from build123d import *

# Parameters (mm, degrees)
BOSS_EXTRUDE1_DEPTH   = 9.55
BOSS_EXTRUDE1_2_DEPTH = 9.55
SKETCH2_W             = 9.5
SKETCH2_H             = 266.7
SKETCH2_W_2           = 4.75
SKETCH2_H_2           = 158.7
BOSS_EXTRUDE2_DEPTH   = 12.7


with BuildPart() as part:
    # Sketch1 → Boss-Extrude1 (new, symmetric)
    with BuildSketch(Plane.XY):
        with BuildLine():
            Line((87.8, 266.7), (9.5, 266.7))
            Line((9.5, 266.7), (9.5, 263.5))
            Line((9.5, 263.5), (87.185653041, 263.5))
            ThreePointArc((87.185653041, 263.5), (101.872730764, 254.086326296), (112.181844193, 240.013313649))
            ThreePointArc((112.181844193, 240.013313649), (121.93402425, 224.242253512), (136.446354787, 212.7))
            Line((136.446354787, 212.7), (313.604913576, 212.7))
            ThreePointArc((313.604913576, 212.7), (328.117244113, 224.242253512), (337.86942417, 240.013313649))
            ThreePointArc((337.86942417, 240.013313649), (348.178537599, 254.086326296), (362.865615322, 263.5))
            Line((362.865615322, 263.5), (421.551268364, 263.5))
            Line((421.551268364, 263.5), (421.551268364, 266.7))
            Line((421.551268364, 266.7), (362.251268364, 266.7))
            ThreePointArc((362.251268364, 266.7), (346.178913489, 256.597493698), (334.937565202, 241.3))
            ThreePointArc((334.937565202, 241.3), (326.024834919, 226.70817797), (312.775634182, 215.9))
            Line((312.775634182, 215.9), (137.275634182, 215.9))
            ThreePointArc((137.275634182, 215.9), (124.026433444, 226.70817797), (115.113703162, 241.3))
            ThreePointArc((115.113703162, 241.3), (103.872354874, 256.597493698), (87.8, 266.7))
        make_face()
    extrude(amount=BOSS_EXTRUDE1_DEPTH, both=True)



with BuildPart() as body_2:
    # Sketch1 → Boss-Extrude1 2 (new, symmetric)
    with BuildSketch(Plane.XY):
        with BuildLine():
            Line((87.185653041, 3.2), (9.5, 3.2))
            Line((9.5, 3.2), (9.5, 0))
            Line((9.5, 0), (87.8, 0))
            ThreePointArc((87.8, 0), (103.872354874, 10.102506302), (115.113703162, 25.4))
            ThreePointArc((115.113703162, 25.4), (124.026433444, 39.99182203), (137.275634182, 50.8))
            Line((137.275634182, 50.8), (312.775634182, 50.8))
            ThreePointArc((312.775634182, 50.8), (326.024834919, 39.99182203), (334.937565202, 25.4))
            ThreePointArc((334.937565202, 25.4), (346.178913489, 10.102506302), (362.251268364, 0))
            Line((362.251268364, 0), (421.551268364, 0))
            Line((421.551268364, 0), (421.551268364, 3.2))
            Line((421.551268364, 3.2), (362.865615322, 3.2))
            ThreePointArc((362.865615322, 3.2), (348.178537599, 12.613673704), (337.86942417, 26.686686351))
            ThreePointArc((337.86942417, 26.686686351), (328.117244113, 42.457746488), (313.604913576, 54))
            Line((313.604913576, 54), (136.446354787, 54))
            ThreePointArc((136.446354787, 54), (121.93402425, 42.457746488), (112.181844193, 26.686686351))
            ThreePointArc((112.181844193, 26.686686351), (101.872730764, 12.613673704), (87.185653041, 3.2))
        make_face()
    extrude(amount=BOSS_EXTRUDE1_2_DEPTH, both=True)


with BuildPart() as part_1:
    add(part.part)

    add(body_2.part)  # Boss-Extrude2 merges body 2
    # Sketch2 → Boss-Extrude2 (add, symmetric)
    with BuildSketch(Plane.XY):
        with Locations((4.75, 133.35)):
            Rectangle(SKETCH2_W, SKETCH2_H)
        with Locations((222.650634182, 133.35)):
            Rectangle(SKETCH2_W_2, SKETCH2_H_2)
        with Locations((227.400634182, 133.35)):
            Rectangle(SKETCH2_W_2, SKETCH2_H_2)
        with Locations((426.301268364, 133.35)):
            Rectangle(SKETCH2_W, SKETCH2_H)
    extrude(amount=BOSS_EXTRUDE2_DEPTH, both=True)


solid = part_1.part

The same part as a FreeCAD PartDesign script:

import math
import FreeCAD as App
import Part
import Sketcher

V = App.Vector


def add_polygon(sketch, points):
    """Adds a closed chain of lines whose ends are joined by coincident constraints."""
    first, n = sketch.GeometryCount, len(points)
    for a, b in zip(points, points[1:] + points[:1]):
        sketch.addGeometry(Part.LineSegment(App.Vector(*a, 0), App.Vector(*b, 0)), False)
    for i in range(n):
        sketch.addConstraint(Sketcher.Constraint("Coincident", first + i, 2, first + (i + 1) % n, 1))

doc = App.newDocument("Part")
body = doc.addObject("PartDesign::Body", "Body")

# Sketch on XY plane
sketch1 = doc.addObject("Sketcher::SketchObject", "Sketch")
body.addObject(sketch1)
sketch1.AttachmentSupport = (doc.XY_Plane, [""])
sketch1.MapMode = "FlatFace"
sketch1.addGeometry([
    Part.LineSegment(V(87.8, 266.7, 0), V(9.5, 266.7, 0)),  # 0
    Part.LineSegment(V(9.5, 266.7, 0), V(9.5, 263.5, 0)),  # 1
    Part.LineSegment(V(9.5, 263.5, 0), V(87.185653, 263.5, 0)),  # 2
    Part.ArcOfCircle(Part.Circle(V(69.278186, 219.396909, 0), V(0, 0, 1), 47.6), math.radians(25.665583), math.radians(67.90105)),  # 3
    Part.ArcOfCircle(Part.Circle(V(162.304394, 260.106348, 0), V(0, 0, 1), 54), math.radians(-158.15523), math.radians(-118.610489)),  # 4
    Part.LineSegment(V(136.446355, 212.7, 0), V(313.604914, 212.7, 0)),  # 5
    Part.ArcOfCircle(Part.Circle(V(287.746875, 260.106348, 0), V(0, 0, 1), 54), math.radians(-61.389511), math.radians(-21.84477)),  # 6
    Part.ArcOfCircle(Part.Circle(V(380.773082, 219.396909, 0), V(0, 0, 1), 47.6), math.radians(112.09895), math.radians(154.334417)),  # 7
    Part.LineSegment(V(362.865615, 263.5, 0), V(421.551268, 263.5, 0)),  # 8
    Part.LineSegment(V(421.551268, 263.5, 0), V(421.551268, 266.7, 0)),  # 9
    Part.LineSegment(V(421.551268, 266.7, 0), V(362.251268, 266.7, 0)),  # 10
    Part.ArcOfCircle(Part.Circle(V(380.773082, 219.396909, 0), V(0, 0, 1), 50.8), math.radians(111.38313), math.radians(154.458597)),  # 11
    Part.ArcOfCircle(Part.Circle(V(287.746875, 260.106348, 0), V(0, 0, 1), 50.8), math.radians(-60.482319), math.radians(-21.72818)),  # 12
    Part.LineSegment(V(312.775634, 215.9, 0), V(137.275634, 215.9, 0)),  # 13
    Part.ArcOfCircle(Part.Circle(V(162.304394, 260.106348, 0), V(0, 0, 1), 50.8), math.radians(-158.27182), math.radians(-119.517681)),  # 14
    Part.ArcOfCircle(Part.Circle(V(69.278186, 219.396909, 0), V(0, 0, 1), 50.8), math.radians(25.541403), math.radians(68.61687)),  # 15
], False)
sketch1.addConstraint([
    Sketcher.Constraint("Coincident", 0, 2, 1, 1),
    Sketcher.Constraint("Coincident", 1, 2, 2, 1),
    Sketcher.Constraint("Coincident", 2, 2, 3, 2),
    Sketcher.Constraint("Coincident", 3, 1, 4, 1),
    Sketcher.Constraint("Coincident", 4, 2, 5, 1),
    Sketcher.Constraint("Coincident", 5, 2, 6, 1),
    Sketcher.Constraint("Coincident", 6, 2, 7, 2),
    Sketcher.Constraint("Coincident", 7, 1, 8, 1),
    Sketcher.Constraint("Coincident", 8, 2, 9, 1),
    Sketcher.Constraint("Coincident", 9, 2, 10, 1),
    Sketcher.Constraint("Coincident", 10, 2, 11, 1),
    Sketcher.Constraint("Coincident", 11, 2, 12, 2),
    Sketcher.Constraint("Coincident", 12, 1, 13, 1),
    Sketcher.Constraint("Coincident", 13, 2, 14, 2),
    Sketcher.Constraint("Coincident", 14, 1, 15, 1),
    Sketcher.Constraint("Coincident", 15, 2, 0, 1),
    Sketcher.Constraint("Horizontal", 0),
    Sketcher.Constraint("Vertical", 1),
    Sketcher.Constraint("Horizontal", 2),
    Sketcher.Constraint("Horizontal", 5),
    Sketcher.Constraint("Horizontal", 8),
    Sketcher.Constraint("Vertical", 9),
    Sketcher.Constraint("Horizontal", 10),
    Sketcher.Constraint("Horizontal", 13),
    Sketcher.Constraint("Coincident", 11, 3, 7, 3),
    Sketcher.Constraint("Coincident", 12, 3, 6, 3),
    Sketcher.Constraint("Coincident", 14, 3, 4, 3),
    Sketcher.Constraint("Coincident", 15, 3, 3, 3),
    Sketcher.Constraint("Equal", 4, 6),
    Sketcher.Constraint("Equal", 3, 7),
    Sketcher.Constraint("Equal", 11, 12),
    Sketcher.Constraint("Equal", 12, 14),
    Sketcher.Constraint("Equal", 14, 15),
    Sketcher.Constraint("Horizontal", 4, 3, 6, 3),
    Sketcher.Constraint("Horizontal", 3, 3, 7, 3),
    Sketcher.Constraint("Horizontal", 3, 1, 6, 2),
    Sketcher.Constraint("Horizontal", 2, 2, 7, 1),
    Sketcher.Constraint("Horizontal", 0, 2, 9, 2),
    Sketcher.Constraint("Radius", 4, 54.0),
    Sketcher.Constraint("Radius", 3, 47.6),
    Sketcher.Constraint("Radius", 11, 50.8),
    Sketcher.Constraint("DistanceX", 0, 2, 0, 1, 78.3),
    Sketcher.Constraint("DistanceX", 10, 2, 10, 1, 59.3),
    Sketcher.Constraint("DistanceX", 13, 2, 13, 1, 175.5),
    Sketcher.Constraint("DistanceY", 1, 2, 1, 1, 3.2),
    Sketcher.Constraint("DistanceX", -1, 1, 0, 2, 9.5),
    Sketcher.Constraint("DistanceY", -1, 1, 0, 2, 266.7),
    Sketcher.Constraint("DistanceY", -1, 1, 4, 2, 212.7),
    Sketcher.Constraint("DistanceY", -1, 1, 11, 2, 241.3),
    Sketcher.Constraint("DistanceY", -1, 1, 12, 1, 215.9),
    Sketcher.Constraint("DistanceX", 5, 1, 5, 2, 177.158559),
    Sketcher.Constraint("DistanceX", 5, 2, 7, 1, 49.260702),
])
pad1 = doc.addObject("PartDesign::Pad", "Pad")
body.addObject(pad1)
pad1.Profile = sketch1
pad1.Length = 19.1
pad1.Midplane = True
body2 = doc.addObject("PartDesign::Body", "Body001")

# Sketch on XY plane
sketch2 = doc.addObject("Sketcher::SketchObject", "Sketch001")
body2.addObject(sketch2)
sketch2.AttachmentSupport = (doc.getObject("XY_Plane001"), [""])
sketch2.MapMode = "FlatFace"
sketch2.addGeometry([
    Part.LineSegment(V(87.185653, 3.2, 0), V(9.5, 3.2, 0)),  # 0
    Part.LineSegment(V(9.5, 3.2, 0), V(9.5, 0, 0)),  # 1
    Part.LineSegment(V(9.5, 0, 0), V(87.8, 0, 0)),  # 2
    Part.ArcOfCircle(Part.Circle(V(69.278186, 47.303091, 0), V(0, 0, 1), 50.8), math.radians(-68.61687), math.radians(-25.541403)),  # 3
    Part.ArcOfCircle(Part.Circle(V(162.304394, 6.593652, 0), V(0, 0, 1), 50.8), math.radians(119.517681), math.radians(158.27182)),  # 4
    Part.LineSegment(V(137.275634, 50.8, 0), V(312.775634, 50.8, 0)),  # 5
    Part.ArcOfCircle(Part.Circle(V(287.746875, 6.593652, 0), V(0, 0, 1), 50.8), math.radians(21.72818), math.radians(60.482319)),  # 6
    Part.ArcOfCircle(Part.Circle(V(380.773082, 47.303091, 0), V(0, 0, 1), 50.8), math.radians(-154.458597), math.radians(-111.38313)),  # 7
    Part.LineSegment(V(362.251268, 0, 0), V(421.551268, 0, 0)),  # 8
    Part.LineSegment(V(421.551268, 0, 0), V(421.551268, 3.2, 0)),  # 9
    Part.LineSegment(V(421.551268, 3.2, 0), V(362.865615, 3.2, 0)),  # 10
    Part.ArcOfCircle(Part.Circle(V(380.773082, 47.303091, 0), V(0, 0, 1), 47.6), math.radians(-154.334417), math.radians(-112.09895)),  # 11
    Part.ArcOfCircle(Part.Circle(V(287.746875, 6.593652, 0), V(0, 0, 1), 54), math.radians(21.84477), math.radians(61.389511)),  # 12
    Part.LineSegment(V(313.604914, 54, 0), V(136.446355, 54, 0)),  # 13
    Part.ArcOfCircle(Part.Circle(V(162.304394, 6.593652, 0), V(0, 0, 1), 54), math.radians(118.610489), math.radians(158.15523)),  # 14
    Part.ArcOfCircle(Part.Circle(V(69.278186, 47.303091, 0), V(0, 0, 1), 47.6), math.radians(-67.90105), math.radians(-25.665583)),  # 15
], False)
sketch2.addConstraint([
    Sketcher.Constraint("Coincident", 0, 2, 1, 1),
    Sketcher.Constraint("Coincident", 1, 2, 2, 1),
    Sketcher.Constraint("Coincident", 2, 2, 3, 1),
    Sketcher.Constraint("Coincident", 3, 2, 4, 2),
    Sketcher.Constraint("Coincident", 4, 1, 5, 1),
    Sketcher.Constraint("Coincident", 5, 2, 6, 2),
    Sketcher.Constraint("Coincident", 6, 1, 7, 1),
    Sketcher.Constraint("Coincident", 7, 2, 8, 1),
    Sketcher.Constraint("Coincident", 8, 2, 9, 1),
    Sketcher.Constraint("Coincident", 9, 2, 10, 1),
    Sketcher.Constraint("Coincident", 10, 2, 11, 2),
    Sketcher.Constraint("Coincident", 11, 1, 12, 1),
    Sketcher.Constraint("Coincident", 12, 2, 13, 1),
    Sketcher.Constraint("Coincident", 13, 2, 14, 1),
    Sketcher.Constraint("Coincident", 14, 2, 15, 2),
    Sketcher.Constraint("Coincident", 15, 1, 0, 1),
    Sketcher.Constraint("Horizontal", 0),
    Sketcher.Constraint("Vertical", 1),
    Sketcher.Constraint("Horizontal", 2),
    Sketcher.Constraint("Horizontal", 5),
    Sketcher.Constraint("Horizontal", 8),
    Sketcher.Constraint("Vertical", 9),
    Sketcher.Constraint("Horizontal", 10),
    Sketcher.Constraint("Horizontal", 13),
    Sketcher.Constraint("Coincident", 11, 3, 7, 3),
    Sketcher.Constraint("Coincident", 12, 3, 6, 3),
    Sketcher.Constraint("Coincident", 14, 3, 4, 3),
    Sketcher.Constraint("Coincident", 15, 3, 3, 3),
    Sketcher.Constraint("Equal", 3, 4),
    Sketcher.Constraint("Equal", 4, 6),
    Sketcher.Constraint("Equal", 6, 7),
    Sketcher.Constraint("Equal", 12, 14),
    Sketcher.Constraint("Equal", 11, 15),
    Sketcher.Constraint("PointOnObject", 1, 2, -1),
    Sketcher.Constraint("PointOnObject", 7, 2, -1),
    Sketcher.Constraint("Horizontal", 4, 3, 6, 3),
    Sketcher.Constraint("Horizontal", 3, 3, 7, 3),
    Sketcher.Constraint("Horizontal", 3, 2, 6, 1),
    Sketcher.Constraint("Horizontal", 0, 2, 9, 2),
    Sketcher.Constraint("Radius", 12, 54.0),
    Sketcher.Constraint("Radius", 3, 50.8),
    Sketcher.Constraint("Radius", 11, 47.6),
    Sketcher.Constraint("DistanceX", 2, 1, 2, 2, 78.3),
    Sketcher.Constraint("DistanceX", 5, 1, 5, 2, 175.5),
    Sketcher.Constraint("DistanceX", 8, 1, 8, 2, 59.3),
    Sketcher.Constraint("DistanceY", 1, 2, 1, 1, 3.2),
    Sketcher.Constraint("DistanceY", -1, 1, 12, 2, 54.0),
    Sketcher.Constraint("DistanceX", -1, 1, 0, 2, 9.5),
    Sketcher.Constraint("DistanceY", -1, 1, 3, 2, 25.4),
    Sketcher.Constraint("DistanceY", -1, 1, 4, 1, 50.8),
    Sketcher.Constraint("DistanceX", 13, 2, 13, 1, 177.158559),
    Sketcher.Constraint("DistanceX", 0, 2, 0, 1, 77.685653),
])
pad2 = doc.addObject("PartDesign::Pad", "Pad001")
body2.addObject(pad2)
pad2.Profile = sketch2
pad2.Length = 19.1
pad2.Midplane = True
body.AllowCompound = True
doc.recompute()

boolean = doc.addObject("PartDesign::Boolean", "Boolean")
body.addObject(boolean)
boolean.Type = "Fuse"
boolean.addObjects([body2])

# Sketch on XY plane
sketch3 = doc.addObject("Sketcher::SketchObject", "Sketch002")
body.addObject(sketch3)
sketch3.AttachmentSupport = (doc.XY_Plane, [""])
sketch3.MapMode = "FlatFace"
add_polygon(sketch3, [(0, 266.7), (0, 0), (9.5, 0), (9.5, 266.7)])  # lines 0-3
add_polygon(sketch3, [(220.275634, 212.7), (220.275634, 54), (229.775634, 54), (229.775634, 212.7)])  # lines 4-7
add_polygon(sketch3, [(421.551268, 266.7), (421.551268, 0), (431.051268, 0), (431.051268, 266.7)])  # lines 8-11
sketch3.addConstraint([
    Sketcher.Constraint("Vertical", 0),
    Sketcher.Constraint("Horizontal", 1),
    Sketcher.Constraint("Vertical", 2),
    Sketcher.Constraint("Horizontal", 3),
    Sketcher.Constraint("Vertical", 4),
    Sketcher.Constraint("Horizontal", 5),
    Sketcher.Constraint("Vertical", 6),
    Sketcher.Constraint("Horizontal", 7),
    Sketcher.Constraint("Vertical", 8),
    Sketcher.Constraint("Horizontal", 9),
    Sketcher.Constraint("Vertical", 10),
    Sketcher.Constraint("Horizontal", 11),
    Sketcher.Constraint("Coincident", 0, 2, -1, 1),
    Sketcher.Constraint("PointOnObject", 8, 2, -1),
    Sketcher.Constraint("Horizontal", 3, 2, 10, 2),
    Sketcher.Constraint("Equal", 3, 5),
    Sketcher.Constraint("Equal", 7, 9),
    Sketcher.Constraint("DistanceX", 1, 1, 1, 2, 9.5),
    Sketcher.Constraint("DistanceY", 0, 2, 0, 1, 266.7),
    Sketcher.Constraint("DistanceY", 4, 2, 4, 1, 158.7),
    Sketcher.Constraint("DistanceY", -1, 1, 4, 2, 54.0),
    Sketcher.Constraint("DistanceX", -1, 1, 8, 2, 421.551268),
    Sketcher.Constraint("DistanceX", -1, 1, 4, 2, 220.275634),
])
pad3 = doc.addObject("PartDesign::Pad", "Pad002")
body.addObject(pad3)
pad3.Profile = sketch3
pad3.Length = 25.4
pad3.Midplane = True

doc.recompute()
